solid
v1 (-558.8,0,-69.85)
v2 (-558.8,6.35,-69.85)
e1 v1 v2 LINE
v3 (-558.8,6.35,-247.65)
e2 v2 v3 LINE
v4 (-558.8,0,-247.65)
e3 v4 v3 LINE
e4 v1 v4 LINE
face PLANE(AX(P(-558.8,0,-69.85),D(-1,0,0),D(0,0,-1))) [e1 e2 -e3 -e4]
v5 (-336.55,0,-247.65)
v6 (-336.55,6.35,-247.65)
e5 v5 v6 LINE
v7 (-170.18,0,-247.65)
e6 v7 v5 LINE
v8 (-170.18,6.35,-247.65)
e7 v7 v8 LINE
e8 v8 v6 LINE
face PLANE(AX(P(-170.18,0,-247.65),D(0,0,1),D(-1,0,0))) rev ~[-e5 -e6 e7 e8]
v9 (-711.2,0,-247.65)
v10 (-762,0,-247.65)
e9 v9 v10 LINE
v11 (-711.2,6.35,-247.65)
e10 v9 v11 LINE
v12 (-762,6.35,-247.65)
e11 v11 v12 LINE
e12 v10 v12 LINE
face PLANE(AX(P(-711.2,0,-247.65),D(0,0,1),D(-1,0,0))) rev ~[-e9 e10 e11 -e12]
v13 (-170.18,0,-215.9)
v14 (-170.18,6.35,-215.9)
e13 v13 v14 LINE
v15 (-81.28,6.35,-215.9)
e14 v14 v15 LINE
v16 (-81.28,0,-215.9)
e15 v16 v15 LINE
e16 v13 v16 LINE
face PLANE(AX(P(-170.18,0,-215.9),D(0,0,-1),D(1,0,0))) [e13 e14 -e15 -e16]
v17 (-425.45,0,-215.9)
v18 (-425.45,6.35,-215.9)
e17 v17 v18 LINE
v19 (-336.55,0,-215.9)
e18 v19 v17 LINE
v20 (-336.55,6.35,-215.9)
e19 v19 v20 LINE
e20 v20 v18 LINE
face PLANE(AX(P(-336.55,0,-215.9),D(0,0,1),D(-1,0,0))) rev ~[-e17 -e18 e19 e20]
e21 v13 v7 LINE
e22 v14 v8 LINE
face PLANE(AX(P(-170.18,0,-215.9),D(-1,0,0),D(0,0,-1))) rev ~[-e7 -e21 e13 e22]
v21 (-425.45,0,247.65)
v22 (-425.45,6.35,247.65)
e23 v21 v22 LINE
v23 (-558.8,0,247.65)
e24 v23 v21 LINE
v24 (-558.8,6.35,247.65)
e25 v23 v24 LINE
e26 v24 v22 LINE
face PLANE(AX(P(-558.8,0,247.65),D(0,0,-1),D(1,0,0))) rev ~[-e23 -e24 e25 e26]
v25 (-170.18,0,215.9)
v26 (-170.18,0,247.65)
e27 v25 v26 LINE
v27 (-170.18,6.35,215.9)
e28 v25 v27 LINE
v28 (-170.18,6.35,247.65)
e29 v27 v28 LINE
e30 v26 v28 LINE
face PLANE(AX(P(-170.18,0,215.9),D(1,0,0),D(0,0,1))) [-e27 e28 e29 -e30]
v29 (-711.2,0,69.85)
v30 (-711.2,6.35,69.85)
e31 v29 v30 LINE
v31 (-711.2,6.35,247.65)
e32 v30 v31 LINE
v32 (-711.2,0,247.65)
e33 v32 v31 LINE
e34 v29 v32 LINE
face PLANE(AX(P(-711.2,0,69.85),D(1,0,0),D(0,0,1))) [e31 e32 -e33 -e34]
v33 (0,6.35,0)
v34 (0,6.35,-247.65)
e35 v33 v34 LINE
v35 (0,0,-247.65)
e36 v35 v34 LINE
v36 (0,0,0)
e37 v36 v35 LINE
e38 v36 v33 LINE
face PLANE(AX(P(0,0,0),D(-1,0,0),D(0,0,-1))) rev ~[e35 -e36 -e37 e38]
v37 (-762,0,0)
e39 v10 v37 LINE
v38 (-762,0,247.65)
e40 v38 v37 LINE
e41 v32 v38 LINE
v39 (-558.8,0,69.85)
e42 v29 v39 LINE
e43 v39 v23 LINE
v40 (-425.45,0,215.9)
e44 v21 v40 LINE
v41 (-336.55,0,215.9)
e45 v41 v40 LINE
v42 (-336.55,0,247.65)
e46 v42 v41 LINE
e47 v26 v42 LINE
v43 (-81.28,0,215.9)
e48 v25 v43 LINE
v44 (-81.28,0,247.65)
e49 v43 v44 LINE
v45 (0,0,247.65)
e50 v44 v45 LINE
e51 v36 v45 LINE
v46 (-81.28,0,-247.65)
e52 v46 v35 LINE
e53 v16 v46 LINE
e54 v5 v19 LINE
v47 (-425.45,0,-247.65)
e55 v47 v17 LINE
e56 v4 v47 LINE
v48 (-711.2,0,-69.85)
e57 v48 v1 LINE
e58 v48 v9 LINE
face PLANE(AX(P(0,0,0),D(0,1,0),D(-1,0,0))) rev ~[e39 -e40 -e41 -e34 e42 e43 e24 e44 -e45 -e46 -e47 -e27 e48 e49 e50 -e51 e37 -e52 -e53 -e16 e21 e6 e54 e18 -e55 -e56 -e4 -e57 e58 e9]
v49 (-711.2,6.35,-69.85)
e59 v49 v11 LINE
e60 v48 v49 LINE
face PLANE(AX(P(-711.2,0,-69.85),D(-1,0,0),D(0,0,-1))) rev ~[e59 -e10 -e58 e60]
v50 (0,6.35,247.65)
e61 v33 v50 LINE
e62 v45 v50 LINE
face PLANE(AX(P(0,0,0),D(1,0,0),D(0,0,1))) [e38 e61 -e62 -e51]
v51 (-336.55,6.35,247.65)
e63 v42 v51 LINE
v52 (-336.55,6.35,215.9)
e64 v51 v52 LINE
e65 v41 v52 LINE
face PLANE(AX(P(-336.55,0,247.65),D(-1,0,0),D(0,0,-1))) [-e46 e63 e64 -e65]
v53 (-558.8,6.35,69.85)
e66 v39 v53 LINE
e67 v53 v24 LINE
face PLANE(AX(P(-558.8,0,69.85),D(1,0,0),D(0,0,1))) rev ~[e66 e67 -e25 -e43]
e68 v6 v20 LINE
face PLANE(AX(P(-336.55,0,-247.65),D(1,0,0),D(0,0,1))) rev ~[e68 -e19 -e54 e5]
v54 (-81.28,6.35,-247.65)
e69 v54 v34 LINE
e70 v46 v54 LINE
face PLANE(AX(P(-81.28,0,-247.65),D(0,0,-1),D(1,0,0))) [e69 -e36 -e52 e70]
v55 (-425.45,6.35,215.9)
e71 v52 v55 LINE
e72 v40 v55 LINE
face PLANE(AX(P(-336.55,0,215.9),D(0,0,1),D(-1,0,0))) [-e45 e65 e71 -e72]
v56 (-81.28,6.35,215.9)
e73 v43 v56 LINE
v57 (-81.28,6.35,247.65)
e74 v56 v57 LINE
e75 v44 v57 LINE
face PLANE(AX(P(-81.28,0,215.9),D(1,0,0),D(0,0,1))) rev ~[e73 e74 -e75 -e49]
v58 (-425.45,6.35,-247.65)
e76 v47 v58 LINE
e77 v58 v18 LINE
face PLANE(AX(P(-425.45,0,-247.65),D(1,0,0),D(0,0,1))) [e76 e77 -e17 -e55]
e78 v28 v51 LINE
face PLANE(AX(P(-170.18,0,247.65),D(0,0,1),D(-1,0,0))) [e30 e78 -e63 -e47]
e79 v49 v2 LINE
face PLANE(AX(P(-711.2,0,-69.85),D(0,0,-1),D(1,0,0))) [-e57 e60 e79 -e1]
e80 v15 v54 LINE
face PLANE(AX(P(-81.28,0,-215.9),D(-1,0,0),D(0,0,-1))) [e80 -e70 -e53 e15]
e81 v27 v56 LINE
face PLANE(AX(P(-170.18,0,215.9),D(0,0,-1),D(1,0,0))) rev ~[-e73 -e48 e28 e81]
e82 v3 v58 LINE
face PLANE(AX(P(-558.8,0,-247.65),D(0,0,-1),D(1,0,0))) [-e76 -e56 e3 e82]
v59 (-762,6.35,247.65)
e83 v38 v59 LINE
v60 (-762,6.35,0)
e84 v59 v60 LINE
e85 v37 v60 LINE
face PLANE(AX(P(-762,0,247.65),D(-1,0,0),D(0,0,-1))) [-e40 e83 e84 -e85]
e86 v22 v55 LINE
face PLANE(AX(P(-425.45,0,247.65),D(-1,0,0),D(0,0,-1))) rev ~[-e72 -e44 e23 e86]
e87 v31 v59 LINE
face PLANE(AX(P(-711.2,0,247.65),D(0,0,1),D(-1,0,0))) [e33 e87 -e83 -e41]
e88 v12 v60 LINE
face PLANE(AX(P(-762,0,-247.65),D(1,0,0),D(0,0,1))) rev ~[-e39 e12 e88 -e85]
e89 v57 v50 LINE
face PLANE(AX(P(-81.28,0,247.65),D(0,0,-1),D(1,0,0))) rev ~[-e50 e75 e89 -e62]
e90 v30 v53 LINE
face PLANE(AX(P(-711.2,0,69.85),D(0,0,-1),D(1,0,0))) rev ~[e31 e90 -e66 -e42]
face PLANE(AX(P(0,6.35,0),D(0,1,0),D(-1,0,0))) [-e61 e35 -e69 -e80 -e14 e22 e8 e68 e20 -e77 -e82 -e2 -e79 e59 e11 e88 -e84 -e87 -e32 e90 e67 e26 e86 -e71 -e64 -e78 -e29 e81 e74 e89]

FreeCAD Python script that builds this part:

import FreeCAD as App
import Part
import Sketcher

V = App.Vector
Q = App.Units.Quantity

doc = App.newDocument("Part")
body = doc.addObject("PartDesign::Body", "Body")

sketch1 = doc.addObject("Sketcher::SketchObject", "Sketch")
body.addObject(sketch1)
sketch1.AttachmentSupport = (doc.XZ_Plane, [""])
sketch1.MapMode = "FlatFace"
sketch1.addGeometry([
    Part.LineSegment(V(-559, -70, 0), V(-711, -70, 0)),
    Part.LineSegment(V(-711, -70, 0), V(-711, -248, 0)),
    Part.LineSegment(V(-711, -248, 0), V(-762, -248, 0)),
    Part.LineSegment(V(-762, -248, 0), V(-762, 248, 0)),
    Part.LineSegment(V(-762, 248, 0), V(-711, 248, 0)),
    Part.LineSegment(V(-711, 248, 0), V(-711, 70, 0)),
    Part.LineSegment(V(-711, 70, 0), V(-559, 70, 0)),
    Part.LineSegment(V(-559, 70, 0), V(-559, 248, 0)),
    Part.LineSegment(V(-559, 248, 0), V(-425, 248, 0)),
    Part.LineSegment(V(-425, 248, 0), V(-425, 216, 0)),
    Part.LineSegment(V(-425, 216, 0), V(-337, 216, 0)),
    Part.LineSegment(V(-337, 216, 0), V(-337, 248, 0)),
    Part.LineSegment(V(-337, 248, 0), V(-170, 248, 0)),
    Part.LineSegment(V(-170, 248, 0), V(-170, 216, 0)),
    Part.LineSegment(V(-170, 216, 0), V(-81, 216, 0)),
    Part.LineSegment(V(-81, 216, 0), V(-81, 248, 0)),
    Part.LineSegment(V(-81, 248, 0), V(0, 248, 0)),
    Part.LineSegment(V(0, 248, 0), V(0, -248, 0)),
    Part.LineSegment(V(0, -248, 0), V(-81, -248, 0)),
    Part.LineSegment(V(-81, -248, 0), V(-81, -216, 0)),
    Part.LineSegment(V(-81, -216, 0), V(-170, -216, 0)),
    Part.LineSegment(V(-170, -216, 0), V(-170, -248, 0)),
    Part.LineSegment(V(-170, -248, 0), V(-337, -248, 0)),
    Part.LineSegment(V(-337, -248, 0), V(-337, -216, 0)),
    Part.LineSegment(V(-337, -216, 0), V(-425, -216, 0)),
    Part.LineSegment(V(-425, -216, 0), V(-425, -248, 0)),
    Part.LineSegment(V(-425, -248, 0), V(-559, -248, 0)),
    Part.LineSegment(V(-559, -248, 0), V(-559, -70, 0)),
], False)
sketch1.addConstraint([
    Sketcher.Constraint("Coincident", 0, 2, 1, 1),
    Sketcher.Constraint("Coincident", 1, 2, 2, 1),
    Sketcher.Constraint("Coincident", 2, 2, 3, 1),
    Sketcher.Constraint("Coincident", 3, 2, 4, 1),
    Sketcher.Constraint("Coincident", 4, 2, 5, 1),
    Sketcher.Constraint("Coincident", 5, 2, 6, 1),
    Sketcher.Constraint("Coincident", 6, 2, 7, 1),
    Sketcher.Constraint("Coincident", 7, 2, 8, 1),
    Sketcher.Constraint("Coincident", 8, 2, 9, 1),
    Sketcher.Constraint("Coincident", 9, 2, 10, 1),
    Sketcher.Constraint("Coincident", 10, 2, 11, 1),
    Sketcher.Constraint("Coincident", 11, 2, 12, 1),
    Sketcher.Constraint("Coincident", 12, 2, 13, 1),
    Sketcher.Constraint("Coincident", 13, 2, 14, 1),
    Sketcher.Constraint("Coincident", 14, 2, 15, 1),
    Sketcher.Constraint("Coincident", 15, 2, 16, 1),
    Sketcher.Constraint("Coincident", 16, 2, 17, 1),
    Sketcher.Constraint("Coincident", 17, 2, 18, 1),
    Sketcher.Constraint("Coincident", 18, 2, 19, 1),
    Sketcher.Constraint("Coincident", 19, 2, 20, 1),
    Sketcher.Constraint("Coincident", 20, 2, 21, 1),
    Sketcher.Constraint("Coincident", 21, 2, 22, 1),
    Sketcher.Constraint("Coincident", 22, 2, 23, 1),
    Sketcher.Constraint("Coincident", 23, 2, 24, 1),
    Sketcher.Constraint("Coincident", 24, 2, 25, 1),
    Sketcher.Constraint("Coincident", 25, 2, 26, 1),
    Sketcher.Constraint("Coincident", 26, 2, 27, 1),
    Sketcher.Constraint("Coincident", 27, 2, 0, 1),
    Sketcher.Constraint("Horizontal", 0),
    Sketcher.Constraint("Vertical", 1),
    Sketcher.Constraint("Horizontal", 2),
    Sketcher.Constraint("Vertical", 3),
    Sketcher.Constraint("Horizontal", 4),
    Sketcher.Constraint("Vertical", 5),
    Sketcher.Constraint("Horizontal", 6),
    Sketcher.Constraint("Vertical", 7),
    Sketcher.Constraint("Horizontal", 8),
    Sketcher.Constraint("Vertical", 9),
    Sketcher.Constraint("Horizontal", 10),
    Sketcher.Constraint("Vertical", 11),
    Sketcher.Constraint("Horizontal", 12),
    Sketcher.Constraint("Vertical", 13),
    Sketcher.Constraint("Horizontal", 14),
    Sketcher.Constraint("Vertical", 15),
    Sketcher.Constraint("Horizontal", 16),
    Sketcher.Constraint("Vertical", 17),
    Sketcher.Constraint("Horizontal", 18),
    Sketcher.Constraint("Vertical", 19),
    Sketcher.Constraint("Horizontal", 20),
    Sketcher.Constraint("Vertical", 21),
    Sketcher.Constraint("Horizontal", 22),
    Sketcher.Constraint("Vertical", 23),
    Sketcher.Constraint("Horizontal", 24),
    Sketcher.Constraint("Vertical", 25),
    Sketcher.Constraint("Horizontal", 26),
    Sketcher.Constraint("Vertical", 27),
    Sketcher.Constraint("Symmetric", 16, 2, 17, 2, -1, 1),
    Sketcher.Constraint("Symmetric", 1, 2, 4, 2, -1),
    Sketcher.Constraint("Symmetric", 14, 2, 19, 2, -1),
    Sketcher.Constraint("Symmetric", 12, 2, 21, 2, -1),
    Sketcher.Constraint("Symmetric", 10, 2, 23, 2, -1),
    Sketcher.Constraint("Symmetric", 8, 2, 25, 2, -1),
    Sketcher.Constraint("Symmetric", 6, 2, 27, 2, -1),
    Sketcher.Constraint("Horizontal", 4, 2, 7, 2),
    Sketcher.Constraint("Horizontal", 8, 2, 11, 2),
    Sketcher.Constraint("Horizontal", 10, 2, 13, 2),
    Sketcher.Constraint("Horizontal", 12, 2, 15, 2),
    Sketcher.Constraint("Equal", 10, 14),
    Sketcher.Constraint("DistanceY", 1, 2, 1, 1, Q("7 in")),
    Sketcher.Constraint("DistanceX", 16, 1, 16, 2, Q("3.2 in")),
    Sketcher.Constraint("DistanceX", 0, 2, -1, 1, Q("28 in")),
    Sketcher.Constraint("DistanceX", 2, 2, -1, 1, Q("30 in")),
    Sketcher.Constraint("DistanceX", 8, 1, 8, 2, Q("5.25 in")),
    Sketcher.Constraint("DistanceY", 9, 2, 9, 1, Q("1.25 in")),
    Sketcher.Constraint("DistanceX", 12, 2, -1, 1, Q("6.7 in")),
    Sketcher.Constraint("DistanceX", 0, 2, 0, 1, Q("6 in")),
    Sketcher.Constraint("DistanceY", 3, 1, 3, 2, Q("19.5 in")),
])
pad1 = doc.addObject("PartDesign::Pad", "Pad")
body.addObject(pad1)
pad1.Profile = sketch1
pad1.Length = Q("0.25 in")
pad1.Reversed = True

doc.recompute()
